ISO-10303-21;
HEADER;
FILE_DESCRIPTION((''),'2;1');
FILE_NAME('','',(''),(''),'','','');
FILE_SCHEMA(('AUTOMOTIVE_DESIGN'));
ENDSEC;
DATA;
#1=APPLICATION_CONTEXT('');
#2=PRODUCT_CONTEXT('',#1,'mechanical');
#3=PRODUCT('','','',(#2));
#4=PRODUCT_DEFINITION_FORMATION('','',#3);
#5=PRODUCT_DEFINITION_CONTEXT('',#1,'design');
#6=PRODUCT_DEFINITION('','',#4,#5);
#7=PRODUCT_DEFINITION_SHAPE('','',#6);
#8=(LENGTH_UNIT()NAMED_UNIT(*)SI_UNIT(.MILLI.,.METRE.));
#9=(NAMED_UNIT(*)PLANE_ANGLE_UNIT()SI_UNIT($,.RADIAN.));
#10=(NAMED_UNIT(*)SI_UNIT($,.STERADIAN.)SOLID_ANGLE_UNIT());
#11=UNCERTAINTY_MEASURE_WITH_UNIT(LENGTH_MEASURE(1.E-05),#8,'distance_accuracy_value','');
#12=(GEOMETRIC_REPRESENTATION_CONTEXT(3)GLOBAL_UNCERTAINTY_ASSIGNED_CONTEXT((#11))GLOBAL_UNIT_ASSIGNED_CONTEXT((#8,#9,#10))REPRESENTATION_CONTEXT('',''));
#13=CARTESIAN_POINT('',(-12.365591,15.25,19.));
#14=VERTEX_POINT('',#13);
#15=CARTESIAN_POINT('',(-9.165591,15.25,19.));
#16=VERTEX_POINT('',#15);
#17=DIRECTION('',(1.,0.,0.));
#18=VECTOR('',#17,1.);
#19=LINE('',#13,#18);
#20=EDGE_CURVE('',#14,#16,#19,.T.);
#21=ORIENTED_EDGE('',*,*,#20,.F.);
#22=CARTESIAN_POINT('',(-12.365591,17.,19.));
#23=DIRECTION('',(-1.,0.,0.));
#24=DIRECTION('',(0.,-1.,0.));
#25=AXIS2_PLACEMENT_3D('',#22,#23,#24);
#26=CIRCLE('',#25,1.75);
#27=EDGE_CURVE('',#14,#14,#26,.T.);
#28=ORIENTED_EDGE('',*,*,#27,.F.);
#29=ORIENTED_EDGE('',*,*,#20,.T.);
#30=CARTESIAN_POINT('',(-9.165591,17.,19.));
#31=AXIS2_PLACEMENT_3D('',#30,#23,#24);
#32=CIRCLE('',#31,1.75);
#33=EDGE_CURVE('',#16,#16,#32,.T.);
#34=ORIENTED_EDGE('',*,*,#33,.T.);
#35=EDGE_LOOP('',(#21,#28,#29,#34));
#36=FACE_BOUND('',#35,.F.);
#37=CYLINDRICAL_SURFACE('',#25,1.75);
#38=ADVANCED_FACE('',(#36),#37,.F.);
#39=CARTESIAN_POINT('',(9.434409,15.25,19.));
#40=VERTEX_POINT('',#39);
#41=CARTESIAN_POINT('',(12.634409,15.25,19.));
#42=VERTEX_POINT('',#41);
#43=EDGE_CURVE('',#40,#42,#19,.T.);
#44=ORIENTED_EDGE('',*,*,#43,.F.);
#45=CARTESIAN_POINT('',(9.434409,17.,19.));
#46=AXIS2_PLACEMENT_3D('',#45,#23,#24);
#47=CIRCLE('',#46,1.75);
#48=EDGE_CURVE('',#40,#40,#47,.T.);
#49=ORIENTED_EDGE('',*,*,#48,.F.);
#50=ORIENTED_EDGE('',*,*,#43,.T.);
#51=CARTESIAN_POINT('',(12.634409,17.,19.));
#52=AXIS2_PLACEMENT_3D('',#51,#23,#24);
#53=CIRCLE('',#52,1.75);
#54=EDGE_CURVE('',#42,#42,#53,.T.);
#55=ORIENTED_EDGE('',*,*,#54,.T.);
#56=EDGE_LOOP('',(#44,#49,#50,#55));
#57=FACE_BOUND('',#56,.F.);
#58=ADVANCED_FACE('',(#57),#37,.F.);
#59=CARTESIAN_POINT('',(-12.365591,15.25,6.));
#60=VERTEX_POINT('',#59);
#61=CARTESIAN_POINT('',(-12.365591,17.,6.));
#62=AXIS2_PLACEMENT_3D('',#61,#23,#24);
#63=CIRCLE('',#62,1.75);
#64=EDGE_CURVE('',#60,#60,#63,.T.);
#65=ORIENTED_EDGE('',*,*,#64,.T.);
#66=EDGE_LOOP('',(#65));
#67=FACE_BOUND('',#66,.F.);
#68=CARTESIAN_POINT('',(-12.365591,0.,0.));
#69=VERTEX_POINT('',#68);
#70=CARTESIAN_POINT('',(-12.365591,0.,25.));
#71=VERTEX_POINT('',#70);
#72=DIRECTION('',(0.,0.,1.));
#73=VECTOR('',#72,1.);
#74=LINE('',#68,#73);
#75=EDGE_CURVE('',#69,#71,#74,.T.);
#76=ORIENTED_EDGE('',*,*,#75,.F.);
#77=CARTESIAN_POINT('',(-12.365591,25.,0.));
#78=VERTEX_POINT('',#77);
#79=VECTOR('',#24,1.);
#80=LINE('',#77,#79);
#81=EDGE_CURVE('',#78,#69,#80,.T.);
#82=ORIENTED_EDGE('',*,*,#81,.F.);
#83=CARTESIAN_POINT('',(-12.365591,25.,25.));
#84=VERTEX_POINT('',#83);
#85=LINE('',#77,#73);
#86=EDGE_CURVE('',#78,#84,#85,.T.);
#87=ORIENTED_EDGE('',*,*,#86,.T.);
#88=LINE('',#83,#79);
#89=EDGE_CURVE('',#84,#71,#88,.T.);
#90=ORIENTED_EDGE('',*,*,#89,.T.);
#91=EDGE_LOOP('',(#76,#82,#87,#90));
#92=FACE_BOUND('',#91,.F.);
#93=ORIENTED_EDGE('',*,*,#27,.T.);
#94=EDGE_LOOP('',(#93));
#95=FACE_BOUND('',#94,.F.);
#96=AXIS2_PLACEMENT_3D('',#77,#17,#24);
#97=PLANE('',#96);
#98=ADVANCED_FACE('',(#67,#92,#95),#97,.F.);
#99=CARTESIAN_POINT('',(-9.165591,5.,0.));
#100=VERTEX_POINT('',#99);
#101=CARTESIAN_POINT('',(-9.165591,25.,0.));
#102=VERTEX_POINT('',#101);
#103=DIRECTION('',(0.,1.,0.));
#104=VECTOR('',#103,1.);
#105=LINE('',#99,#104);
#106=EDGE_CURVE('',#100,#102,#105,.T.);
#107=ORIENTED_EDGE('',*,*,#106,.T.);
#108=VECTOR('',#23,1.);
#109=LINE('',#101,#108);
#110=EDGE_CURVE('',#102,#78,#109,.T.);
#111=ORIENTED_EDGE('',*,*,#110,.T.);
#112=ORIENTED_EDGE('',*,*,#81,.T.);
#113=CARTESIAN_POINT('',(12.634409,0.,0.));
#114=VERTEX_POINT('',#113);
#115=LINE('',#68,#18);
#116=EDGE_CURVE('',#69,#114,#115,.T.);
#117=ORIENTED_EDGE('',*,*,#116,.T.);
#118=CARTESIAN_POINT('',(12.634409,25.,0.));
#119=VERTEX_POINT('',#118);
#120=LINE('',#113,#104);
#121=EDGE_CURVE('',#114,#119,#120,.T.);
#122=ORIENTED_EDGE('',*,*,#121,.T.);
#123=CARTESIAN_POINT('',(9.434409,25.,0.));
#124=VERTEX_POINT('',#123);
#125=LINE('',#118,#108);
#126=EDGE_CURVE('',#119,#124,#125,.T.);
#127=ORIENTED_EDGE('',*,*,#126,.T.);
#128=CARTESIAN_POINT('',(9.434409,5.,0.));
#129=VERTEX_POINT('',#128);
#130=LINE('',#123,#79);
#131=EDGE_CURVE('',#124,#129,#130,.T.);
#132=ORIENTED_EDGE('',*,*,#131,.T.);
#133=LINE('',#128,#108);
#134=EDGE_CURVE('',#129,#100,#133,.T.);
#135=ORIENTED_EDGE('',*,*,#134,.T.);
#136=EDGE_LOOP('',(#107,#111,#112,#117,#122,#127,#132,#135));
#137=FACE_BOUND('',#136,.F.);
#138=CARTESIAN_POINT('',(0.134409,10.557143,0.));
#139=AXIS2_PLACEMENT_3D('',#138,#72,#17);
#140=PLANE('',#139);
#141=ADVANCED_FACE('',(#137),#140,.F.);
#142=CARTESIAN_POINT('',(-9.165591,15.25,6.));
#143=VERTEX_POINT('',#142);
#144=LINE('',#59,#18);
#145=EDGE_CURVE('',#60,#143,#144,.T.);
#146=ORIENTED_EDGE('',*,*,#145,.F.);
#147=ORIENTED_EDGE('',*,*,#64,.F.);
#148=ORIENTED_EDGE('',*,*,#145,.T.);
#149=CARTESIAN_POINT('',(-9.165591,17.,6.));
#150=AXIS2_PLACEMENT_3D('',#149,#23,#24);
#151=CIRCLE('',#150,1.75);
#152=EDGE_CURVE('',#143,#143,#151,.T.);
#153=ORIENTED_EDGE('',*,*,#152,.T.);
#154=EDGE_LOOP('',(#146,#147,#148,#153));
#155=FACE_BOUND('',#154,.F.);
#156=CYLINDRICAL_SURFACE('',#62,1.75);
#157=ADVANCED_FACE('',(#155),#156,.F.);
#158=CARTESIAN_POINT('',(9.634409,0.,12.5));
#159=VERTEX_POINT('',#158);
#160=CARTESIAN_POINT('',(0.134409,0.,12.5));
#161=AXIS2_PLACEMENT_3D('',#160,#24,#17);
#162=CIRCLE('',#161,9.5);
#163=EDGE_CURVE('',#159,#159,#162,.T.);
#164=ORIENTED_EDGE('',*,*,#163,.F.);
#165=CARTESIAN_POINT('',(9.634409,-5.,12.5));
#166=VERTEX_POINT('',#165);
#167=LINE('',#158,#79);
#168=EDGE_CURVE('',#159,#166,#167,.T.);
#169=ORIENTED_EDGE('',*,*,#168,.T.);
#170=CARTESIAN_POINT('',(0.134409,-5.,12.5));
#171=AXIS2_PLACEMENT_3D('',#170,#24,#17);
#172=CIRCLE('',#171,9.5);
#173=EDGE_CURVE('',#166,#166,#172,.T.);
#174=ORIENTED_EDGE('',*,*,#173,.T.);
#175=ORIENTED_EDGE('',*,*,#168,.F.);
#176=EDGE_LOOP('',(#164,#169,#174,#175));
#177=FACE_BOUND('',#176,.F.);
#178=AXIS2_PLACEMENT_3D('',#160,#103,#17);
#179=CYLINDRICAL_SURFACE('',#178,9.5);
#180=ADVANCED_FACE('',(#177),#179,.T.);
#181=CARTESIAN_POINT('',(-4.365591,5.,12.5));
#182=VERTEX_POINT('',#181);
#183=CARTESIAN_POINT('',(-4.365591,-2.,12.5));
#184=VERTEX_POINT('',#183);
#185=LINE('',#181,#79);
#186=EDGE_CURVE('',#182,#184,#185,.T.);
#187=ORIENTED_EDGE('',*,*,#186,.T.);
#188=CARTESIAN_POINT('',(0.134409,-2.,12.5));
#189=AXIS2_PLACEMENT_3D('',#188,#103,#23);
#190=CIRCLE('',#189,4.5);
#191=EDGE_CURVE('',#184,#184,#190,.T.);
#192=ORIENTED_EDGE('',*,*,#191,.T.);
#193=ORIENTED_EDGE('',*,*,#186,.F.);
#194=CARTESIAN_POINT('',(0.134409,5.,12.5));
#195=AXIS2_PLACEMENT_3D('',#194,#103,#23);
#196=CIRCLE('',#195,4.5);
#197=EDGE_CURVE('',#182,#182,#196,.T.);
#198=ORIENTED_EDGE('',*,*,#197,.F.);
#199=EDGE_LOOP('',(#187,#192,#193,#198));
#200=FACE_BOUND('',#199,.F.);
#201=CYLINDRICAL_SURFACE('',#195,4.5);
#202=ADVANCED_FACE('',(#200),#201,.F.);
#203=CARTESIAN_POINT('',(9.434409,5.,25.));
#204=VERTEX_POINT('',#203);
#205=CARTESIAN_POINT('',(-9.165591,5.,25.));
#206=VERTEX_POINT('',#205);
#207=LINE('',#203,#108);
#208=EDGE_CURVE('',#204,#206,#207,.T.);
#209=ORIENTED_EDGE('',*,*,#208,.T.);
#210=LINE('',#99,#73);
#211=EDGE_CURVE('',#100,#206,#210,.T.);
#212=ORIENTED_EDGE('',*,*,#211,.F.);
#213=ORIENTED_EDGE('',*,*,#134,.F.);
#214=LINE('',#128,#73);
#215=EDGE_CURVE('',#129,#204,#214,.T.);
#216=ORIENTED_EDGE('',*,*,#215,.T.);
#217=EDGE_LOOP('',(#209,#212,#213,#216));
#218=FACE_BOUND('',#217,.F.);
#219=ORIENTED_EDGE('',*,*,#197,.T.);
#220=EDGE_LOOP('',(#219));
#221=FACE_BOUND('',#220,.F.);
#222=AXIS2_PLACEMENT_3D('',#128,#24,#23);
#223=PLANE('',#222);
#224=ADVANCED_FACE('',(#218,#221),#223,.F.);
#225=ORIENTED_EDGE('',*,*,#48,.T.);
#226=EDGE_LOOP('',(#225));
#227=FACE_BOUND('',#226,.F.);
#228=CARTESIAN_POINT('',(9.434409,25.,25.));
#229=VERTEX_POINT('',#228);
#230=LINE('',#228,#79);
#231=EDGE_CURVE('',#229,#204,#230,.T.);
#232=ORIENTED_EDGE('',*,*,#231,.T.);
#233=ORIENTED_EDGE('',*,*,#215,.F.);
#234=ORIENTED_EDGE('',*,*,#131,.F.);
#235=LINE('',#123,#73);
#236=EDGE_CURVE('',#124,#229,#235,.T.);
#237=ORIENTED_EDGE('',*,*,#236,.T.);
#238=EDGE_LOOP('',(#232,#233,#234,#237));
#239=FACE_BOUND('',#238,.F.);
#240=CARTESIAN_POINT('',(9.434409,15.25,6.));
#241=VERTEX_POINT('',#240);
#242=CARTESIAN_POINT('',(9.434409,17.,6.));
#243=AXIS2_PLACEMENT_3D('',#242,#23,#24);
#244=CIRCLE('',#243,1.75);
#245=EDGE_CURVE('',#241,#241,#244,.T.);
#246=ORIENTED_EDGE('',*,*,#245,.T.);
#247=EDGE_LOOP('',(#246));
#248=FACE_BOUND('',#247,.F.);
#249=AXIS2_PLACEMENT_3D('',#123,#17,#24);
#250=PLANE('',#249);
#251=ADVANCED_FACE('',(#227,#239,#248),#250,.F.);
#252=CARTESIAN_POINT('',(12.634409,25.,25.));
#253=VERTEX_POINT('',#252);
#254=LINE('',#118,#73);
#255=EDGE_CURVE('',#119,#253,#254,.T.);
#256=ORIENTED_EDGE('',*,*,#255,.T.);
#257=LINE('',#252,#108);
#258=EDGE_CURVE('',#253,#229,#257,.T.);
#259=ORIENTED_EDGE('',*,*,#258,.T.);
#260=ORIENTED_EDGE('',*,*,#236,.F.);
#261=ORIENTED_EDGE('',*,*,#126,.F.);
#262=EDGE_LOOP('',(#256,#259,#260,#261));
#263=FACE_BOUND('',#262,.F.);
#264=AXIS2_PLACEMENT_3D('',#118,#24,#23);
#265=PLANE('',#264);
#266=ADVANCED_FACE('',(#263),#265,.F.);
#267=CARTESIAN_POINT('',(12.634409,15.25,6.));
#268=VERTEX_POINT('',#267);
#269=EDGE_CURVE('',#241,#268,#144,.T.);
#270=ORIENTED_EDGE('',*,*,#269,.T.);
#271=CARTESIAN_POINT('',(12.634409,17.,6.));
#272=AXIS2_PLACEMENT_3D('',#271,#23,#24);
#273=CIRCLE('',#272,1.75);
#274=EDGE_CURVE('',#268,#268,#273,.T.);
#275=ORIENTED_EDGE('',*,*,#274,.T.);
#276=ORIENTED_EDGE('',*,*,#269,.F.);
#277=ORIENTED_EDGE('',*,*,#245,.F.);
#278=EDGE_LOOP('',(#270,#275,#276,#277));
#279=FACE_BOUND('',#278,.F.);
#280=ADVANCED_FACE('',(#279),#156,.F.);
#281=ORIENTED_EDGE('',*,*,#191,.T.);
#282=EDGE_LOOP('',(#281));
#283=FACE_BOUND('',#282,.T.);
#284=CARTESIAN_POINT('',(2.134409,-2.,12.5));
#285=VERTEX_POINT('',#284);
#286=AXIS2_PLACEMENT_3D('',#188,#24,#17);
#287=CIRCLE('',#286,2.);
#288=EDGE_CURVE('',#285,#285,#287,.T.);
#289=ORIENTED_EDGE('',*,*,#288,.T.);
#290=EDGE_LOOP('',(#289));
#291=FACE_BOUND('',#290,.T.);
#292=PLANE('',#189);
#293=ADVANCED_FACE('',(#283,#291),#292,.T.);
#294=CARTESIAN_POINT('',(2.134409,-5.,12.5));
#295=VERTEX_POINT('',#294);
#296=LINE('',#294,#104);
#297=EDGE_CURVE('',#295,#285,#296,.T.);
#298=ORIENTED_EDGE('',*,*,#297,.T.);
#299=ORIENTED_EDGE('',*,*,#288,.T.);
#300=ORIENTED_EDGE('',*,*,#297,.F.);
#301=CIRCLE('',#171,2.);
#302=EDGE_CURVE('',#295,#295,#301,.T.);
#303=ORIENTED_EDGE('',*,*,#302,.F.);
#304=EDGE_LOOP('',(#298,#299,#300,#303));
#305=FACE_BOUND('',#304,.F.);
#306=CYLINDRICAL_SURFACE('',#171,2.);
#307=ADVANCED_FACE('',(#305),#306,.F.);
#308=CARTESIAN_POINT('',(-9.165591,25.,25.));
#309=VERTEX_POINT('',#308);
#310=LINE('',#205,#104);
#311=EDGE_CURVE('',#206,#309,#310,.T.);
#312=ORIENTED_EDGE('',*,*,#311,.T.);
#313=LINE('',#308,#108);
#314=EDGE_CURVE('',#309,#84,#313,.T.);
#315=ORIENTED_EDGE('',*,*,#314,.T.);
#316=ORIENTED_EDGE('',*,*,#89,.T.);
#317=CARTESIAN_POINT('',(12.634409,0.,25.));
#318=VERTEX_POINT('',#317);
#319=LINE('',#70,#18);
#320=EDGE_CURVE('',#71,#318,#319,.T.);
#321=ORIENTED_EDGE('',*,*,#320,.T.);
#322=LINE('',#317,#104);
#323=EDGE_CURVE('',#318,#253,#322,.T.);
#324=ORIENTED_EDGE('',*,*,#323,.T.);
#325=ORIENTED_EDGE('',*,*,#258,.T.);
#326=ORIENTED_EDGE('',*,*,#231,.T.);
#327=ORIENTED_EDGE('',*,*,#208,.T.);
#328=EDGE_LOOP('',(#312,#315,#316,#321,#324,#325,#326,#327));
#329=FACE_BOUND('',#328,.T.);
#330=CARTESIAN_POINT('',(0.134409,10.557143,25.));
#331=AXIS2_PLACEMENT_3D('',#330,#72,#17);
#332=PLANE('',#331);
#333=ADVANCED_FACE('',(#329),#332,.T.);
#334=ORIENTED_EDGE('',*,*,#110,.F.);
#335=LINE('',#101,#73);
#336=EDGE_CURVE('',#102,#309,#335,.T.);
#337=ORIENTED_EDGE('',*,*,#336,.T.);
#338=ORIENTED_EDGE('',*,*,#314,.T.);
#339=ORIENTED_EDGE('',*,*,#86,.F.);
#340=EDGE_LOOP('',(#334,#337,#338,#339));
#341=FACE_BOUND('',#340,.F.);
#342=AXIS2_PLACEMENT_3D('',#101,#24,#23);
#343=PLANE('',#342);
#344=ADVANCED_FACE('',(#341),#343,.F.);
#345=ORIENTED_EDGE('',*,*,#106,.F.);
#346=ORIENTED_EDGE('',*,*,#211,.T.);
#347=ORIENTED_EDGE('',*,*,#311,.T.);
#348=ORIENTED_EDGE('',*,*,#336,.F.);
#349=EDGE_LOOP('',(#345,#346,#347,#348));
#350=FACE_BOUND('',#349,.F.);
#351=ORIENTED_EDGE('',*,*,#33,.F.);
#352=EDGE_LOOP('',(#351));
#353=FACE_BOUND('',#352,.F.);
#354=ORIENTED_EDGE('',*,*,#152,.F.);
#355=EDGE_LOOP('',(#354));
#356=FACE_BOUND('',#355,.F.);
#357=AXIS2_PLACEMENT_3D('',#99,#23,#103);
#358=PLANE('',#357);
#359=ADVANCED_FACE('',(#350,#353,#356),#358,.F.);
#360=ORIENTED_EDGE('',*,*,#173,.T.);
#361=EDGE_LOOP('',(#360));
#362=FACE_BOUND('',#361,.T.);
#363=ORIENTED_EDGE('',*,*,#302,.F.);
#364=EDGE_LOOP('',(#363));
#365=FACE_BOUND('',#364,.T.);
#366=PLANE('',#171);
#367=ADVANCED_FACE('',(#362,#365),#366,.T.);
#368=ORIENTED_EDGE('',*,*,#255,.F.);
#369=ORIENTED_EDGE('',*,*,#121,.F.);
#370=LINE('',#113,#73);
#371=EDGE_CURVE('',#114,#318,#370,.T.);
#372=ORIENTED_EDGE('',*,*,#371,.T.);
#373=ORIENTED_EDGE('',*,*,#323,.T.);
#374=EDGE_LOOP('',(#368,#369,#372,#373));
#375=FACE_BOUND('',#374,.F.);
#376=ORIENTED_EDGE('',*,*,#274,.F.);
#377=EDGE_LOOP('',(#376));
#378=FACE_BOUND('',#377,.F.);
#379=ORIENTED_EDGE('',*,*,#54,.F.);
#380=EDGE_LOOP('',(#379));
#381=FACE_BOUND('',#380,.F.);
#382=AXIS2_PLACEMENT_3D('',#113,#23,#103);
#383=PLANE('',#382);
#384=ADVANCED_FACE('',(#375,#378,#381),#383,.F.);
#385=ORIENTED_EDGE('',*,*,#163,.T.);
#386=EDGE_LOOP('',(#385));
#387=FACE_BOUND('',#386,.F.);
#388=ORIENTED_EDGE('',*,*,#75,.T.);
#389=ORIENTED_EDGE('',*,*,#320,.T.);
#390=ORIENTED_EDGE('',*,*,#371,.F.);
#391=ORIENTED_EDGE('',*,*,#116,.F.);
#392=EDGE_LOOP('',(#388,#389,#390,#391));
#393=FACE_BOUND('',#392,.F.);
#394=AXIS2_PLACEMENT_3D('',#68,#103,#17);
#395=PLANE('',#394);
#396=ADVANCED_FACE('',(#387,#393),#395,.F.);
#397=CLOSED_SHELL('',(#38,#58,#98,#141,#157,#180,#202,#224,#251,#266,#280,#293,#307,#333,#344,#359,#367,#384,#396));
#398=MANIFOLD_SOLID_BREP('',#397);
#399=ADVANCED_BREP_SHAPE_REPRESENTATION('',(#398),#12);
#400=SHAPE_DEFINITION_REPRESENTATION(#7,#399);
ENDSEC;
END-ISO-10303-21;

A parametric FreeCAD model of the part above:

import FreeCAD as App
import Part
import Sketcher
from FreeCAD import Vector


def add_polygon(sketch, points):
    """Adds a closed chain of lines whose ends are joined by coincident constraints."""
    first, n = sketch.GeometryCount, len(points)
    for a, b in zip(points, points[1:] + points[:1]):
        sketch.addGeometry(Part.LineSegment(App.Vector(*a, 0), App.Vector(*b, 0)), False)
    for i in range(n):
        sketch.addConstraint(Sketcher.Constraint("Coincident", first + i, 2, first + (i + 1) % n, 1))

doc = App.newDocument("Part")
body = doc.addObject("PartDesign::Body", "Body")

# Sketch on XY plane
sketch1 = body.newObject("Sketcher::SketchObject", "Sketch")
sketch1.AttachmentSupport = (doc.getObject("XY_Plane"), [""])
sketch1.MapMode = "FlatFace"
add_polygon(sketch1, [(-12.365591, 25), (-12.365591, 0), (12.634409, 0), (12.634409, 25), (9.434409, 25), (9.434409, 5), (-9.165591, 5), (-9.165591, 25)])  # lines 0-7
sketch1.addConstraint([
    Sketcher.Constraint("Vertical", 0),
    Sketcher.Constraint("Horizontal", 1),
    Sketcher.Constraint("Vertical", 2),
    Sketcher.Constraint("Horizontal", 3),
    Sketcher.Constraint("Vertical", 4),
    Sketcher.Constraint("Horizontal", 5),
    Sketcher.Constraint("Vertical", 6),
    Sketcher.Constraint("Horizontal", 7),
    Sketcher.Constraint("PointOnObject", 0, 2, -1),
    Sketcher.Constraint("Horizontal", 3, 2, 6, 2),
    Sketcher.Constraint("Equal", 3, 7),
    Sketcher.Constraint("Equal", 1, 0),
    Sketcher.Constraint("DistanceX", 1, 1, 1, 2, 25.0),
    Sketcher.Constraint("DistanceY", 4, 2, 4, 1, 20.0),
    Sketcher.Constraint("DistanceX", 3, 2, 3, 1, 3.2),
    Sketcher.Constraint("DistanceX", 0, 2, -1, 1, 12.365591),
])
pad1 = body.newObject("PartDesign::Pad", "Pad")
pad1.Profile = sketch1
pad1.Length = 25

# Sketch on XZ plane
sketch2 = body.newObject("Sketcher::SketchObject", "Sketch001")
sketch2.AttachmentSupport = (doc.getObject("XZ_Plane"), [""])
sketch2.MapMode = "FlatFace"
sketch2.addGeometry(Part.Circle(Vector(0.134409, 12.5, 0), Vector(0, 0, 1), 9.5), False)
sketch2.addConstraint([
    Sketcher.Constraint("Diameter", 0, 19.0),
    Sketcher.Constraint("DistanceY", -1, 1, 0, 3, 12.5),
    Sketcher.Constraint("DistanceX", -1, 1, 0, 3, 0.134409),
])
pad2 = body.newObject("PartDesign::Pad", "Pad001")
pad2.Profile = sketch2
pad2.Length = 5

# Sketch on XZ plane
sketch3 = body.newObject("Sketcher::SketchObject", "Sketch002")
sketch3.AttachmentSupport = (doc.getObject("XZ_Plane"), [""])
sketch3.MapMode = "FlatFace"
sketch3.AttachmentOffset = App.Placement(Vector(0, 0, 5), App.Rotation())
sketch3.addGeometry(Part.Circle(Vector(0.134409, 12.5, 0), Vector(0, 0, 1), 2), False)
sketch3.addConstraint([
    Sketcher.Constraint("Diameter", 0, 4.0),
    Sketcher.Constraint("DistanceY", -1, 1, 0, 3, 12.5),
    Sketcher.Constraint("DistanceX", -1, 1, 0, 3, 0.134409),
])
pocket1 = body.newObject("PartDesign::Pocket", "Pocket")
pocket1.Profile = sketch3
pocket1.Type = "ThroughAll"

# Sketch on XZ plane
sketch4 = body.newObject("Sketcher::SketchObject", "Sketch003")
sketch4.AttachmentSupport = (doc.getObject("XZ_Plane"), [""])
sketch4.MapMode = "FlatFace"
sketch4.AttachmentOffset = App.Placement(Vector(0, 0, -5), App.Rotation())
sketch4.addGeometry(Part.Circle(Vector(0.134409, 12.5, 0), Vector(0, 0, 1), 4.5), False)
sketch4.addConstraint([
    Sketcher.Constraint("Diameter", 0, 9.0),
    Sketcher.Constraint("DistanceY", -1, 1, 0, 3, 12.5),
    Sketcher.Constraint("DistanceX", -1, 1, 0, 3, 0.134409),
])
pocket2 = body.newObject("PartDesign::Pocket", "Pocket001")
pocket2.Profile = sketch4
pocket2.Length = 7
pocket2.Reversed = True

# Sketch on YZ plane
sketch5 = body.newObject("Sketcher::SketchObject", "Sketch004")
sketch5.AttachmentSupport = (doc.getObject("YZ_Plane"), [""])
sketch5.MapMode = "FlatFace"
sketch5.AttachmentOffset = App.Placement(Vector(0, 0, -12.365591), App.Rotation())
sketch5.addGeometry([
    Part.Circle(Vector(17, 6, 0), Vector(0, 0, 1), 1.75),
    Part.Circle(Vector(17, 19, 0), Vector(0, 0, 1), 1.75),
], False)
sketch5.addConstraint([
    Sketcher.Constraint("Equal", 0, 1),
    Sketcher.Constraint("Vertical", 0, 3, 1, 3),
    Sketcher.Constraint("Diameter", 0, 3.5),
    Sketcher.Constraint("DistanceX", -1, 1, 0, 3, 17.0),
    Sketcher.Constraint("DistanceY", -1, 1, 0, 3, 6.0),
    Sketcher.Constraint("DistanceY", -1, 1, 1, 3, 19.0),
])
pocket3 = body.newObject("PartDesign::Pocket", "Pocket002")
pocket3.Profile = sketch5
pocket3.Type = "ThroughAll"
pocket3.Reversed = True

doc.recompute()
